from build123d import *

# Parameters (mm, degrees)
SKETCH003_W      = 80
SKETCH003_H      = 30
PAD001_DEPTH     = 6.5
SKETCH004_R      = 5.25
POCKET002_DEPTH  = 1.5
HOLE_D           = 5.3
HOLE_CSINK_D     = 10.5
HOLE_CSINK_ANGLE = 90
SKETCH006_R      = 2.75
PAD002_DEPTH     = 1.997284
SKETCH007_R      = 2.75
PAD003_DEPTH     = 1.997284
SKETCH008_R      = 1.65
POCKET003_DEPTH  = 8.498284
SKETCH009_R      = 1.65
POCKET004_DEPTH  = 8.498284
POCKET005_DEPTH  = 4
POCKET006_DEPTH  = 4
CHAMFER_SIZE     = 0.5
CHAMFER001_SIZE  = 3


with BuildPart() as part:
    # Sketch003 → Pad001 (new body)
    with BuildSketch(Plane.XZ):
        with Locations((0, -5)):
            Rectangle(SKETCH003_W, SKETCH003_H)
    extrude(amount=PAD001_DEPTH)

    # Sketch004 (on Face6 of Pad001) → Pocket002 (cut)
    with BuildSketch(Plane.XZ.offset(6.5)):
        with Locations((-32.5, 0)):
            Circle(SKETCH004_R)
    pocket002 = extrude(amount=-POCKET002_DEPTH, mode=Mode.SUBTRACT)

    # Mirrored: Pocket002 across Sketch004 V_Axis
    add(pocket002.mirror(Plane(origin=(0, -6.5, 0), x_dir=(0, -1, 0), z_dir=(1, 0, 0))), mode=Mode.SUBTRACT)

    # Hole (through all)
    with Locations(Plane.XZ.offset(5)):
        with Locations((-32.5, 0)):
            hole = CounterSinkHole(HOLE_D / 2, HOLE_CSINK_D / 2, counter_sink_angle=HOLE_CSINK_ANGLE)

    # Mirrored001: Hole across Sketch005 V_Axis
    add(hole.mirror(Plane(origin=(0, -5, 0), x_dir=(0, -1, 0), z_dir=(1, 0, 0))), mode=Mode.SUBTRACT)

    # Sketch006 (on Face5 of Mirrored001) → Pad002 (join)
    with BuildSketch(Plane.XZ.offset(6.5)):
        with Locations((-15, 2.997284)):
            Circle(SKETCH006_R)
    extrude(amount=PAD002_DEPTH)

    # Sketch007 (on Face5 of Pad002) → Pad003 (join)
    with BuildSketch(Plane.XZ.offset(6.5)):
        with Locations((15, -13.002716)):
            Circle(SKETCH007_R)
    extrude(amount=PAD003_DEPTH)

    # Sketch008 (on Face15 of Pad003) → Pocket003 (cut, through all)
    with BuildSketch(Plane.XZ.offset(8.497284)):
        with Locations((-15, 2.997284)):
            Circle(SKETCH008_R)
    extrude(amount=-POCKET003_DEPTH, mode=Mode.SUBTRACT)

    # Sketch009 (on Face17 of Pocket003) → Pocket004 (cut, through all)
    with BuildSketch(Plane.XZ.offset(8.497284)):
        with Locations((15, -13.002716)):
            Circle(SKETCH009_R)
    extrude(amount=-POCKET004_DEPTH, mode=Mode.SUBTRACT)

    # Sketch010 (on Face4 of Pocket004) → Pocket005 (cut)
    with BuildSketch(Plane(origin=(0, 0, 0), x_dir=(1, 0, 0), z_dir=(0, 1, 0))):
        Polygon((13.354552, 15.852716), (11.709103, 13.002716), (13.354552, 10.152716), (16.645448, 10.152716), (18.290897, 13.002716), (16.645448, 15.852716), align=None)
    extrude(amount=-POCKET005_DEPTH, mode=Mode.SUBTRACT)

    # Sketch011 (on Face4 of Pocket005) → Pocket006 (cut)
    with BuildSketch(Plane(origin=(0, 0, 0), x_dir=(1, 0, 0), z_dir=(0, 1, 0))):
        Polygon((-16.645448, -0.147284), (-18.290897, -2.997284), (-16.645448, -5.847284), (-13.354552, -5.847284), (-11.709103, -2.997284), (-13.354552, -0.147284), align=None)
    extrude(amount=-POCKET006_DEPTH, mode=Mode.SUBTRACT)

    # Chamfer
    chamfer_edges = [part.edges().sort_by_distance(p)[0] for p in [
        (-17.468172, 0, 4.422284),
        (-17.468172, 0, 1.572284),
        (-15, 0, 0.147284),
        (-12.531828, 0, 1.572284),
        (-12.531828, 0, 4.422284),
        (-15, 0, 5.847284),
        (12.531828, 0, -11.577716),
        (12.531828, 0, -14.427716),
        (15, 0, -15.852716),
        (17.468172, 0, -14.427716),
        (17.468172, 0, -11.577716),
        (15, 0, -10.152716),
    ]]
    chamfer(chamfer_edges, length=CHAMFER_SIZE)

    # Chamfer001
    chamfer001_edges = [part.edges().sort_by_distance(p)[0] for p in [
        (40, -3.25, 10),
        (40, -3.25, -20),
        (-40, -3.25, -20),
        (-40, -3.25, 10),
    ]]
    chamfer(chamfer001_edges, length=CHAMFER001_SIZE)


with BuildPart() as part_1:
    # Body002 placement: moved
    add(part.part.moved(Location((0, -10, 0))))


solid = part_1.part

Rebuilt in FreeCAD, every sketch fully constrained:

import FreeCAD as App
import Part
import Sketcher
Q = App.Units.Quantity


def edges_at(feature, points):
    """Names of the edges that pass closest to the given points."""
    edges = feature.Shape.Edges
    near = lambda p: min(range(len(edges)), key=lambda i: edges[i].distToShape(Part.Vertex(*p))[0])
    return sorted({f"Edge{near(p) + 1}" for p in points})


def add_polygon(sketch, points):
    """Adds a closed chain of lines whose ends are joined by coincident constraints."""
    first, n = sketch.GeometryCount, len(points)
    for a, b in zip(points, points[1:] + points[:1]):
        sketch.addGeometry(Part.LineSegment(App.Vector(*a, 0), App.Vector(*b, 0)), False)
    for i in range(n):
        sketch.addConstraint(Sketcher.Constraint("Coincident", first + i, 2, first + (i + 1) % n, 1))

doc = App.newDocument("Part")
body = doc.addObject("PartDesign::Body", "Body")

# Sketch on XZ plane
sketch1 = body.newObject("Sketcher::SketchObject", "Sketch")
sketch1.AttachmentSupport = (doc.getObject("XZ_Plane"), [""])
sketch1.MapMode = "FlatFace"
add_polygon(sketch1, [(-40, 10), (-40, -20), (40, -20), (40, 10)])  # lines 0-3
sketch1.addConstraint([
    Sketcher.Constraint("Vertical", 0),
    Sketcher.Constraint("Horizontal", 1),
    Sketcher.Constraint("Vertical", 2),
    Sketcher.Constraint("Horizontal", 3),
    Sketcher.Constraint("DistanceX", 1, 1, 1, 2, Q("80 mm")),
    Sketcher.Constraint("DistanceY", 0, 2, 0, 1, Q("30 mm")),
    Sketcher.Constraint("DistanceX", 0, 2, -1, 1, Q("40 mm")),
    Sketcher.Constraint("DistanceY", 0, 2, -1, 1, Q("20 mm")),
])
pad1 = body.newObject("PartDesign::Pad", "Pad")
pad1.Profile = sketch1
pad1.Length = 6.5

# Sketch on XZ plane
sketch2 = body.newObject("Sketcher::SketchObject", "Sketch001")
sketch2.AttachmentSupport = (doc.getObject("XZ_Plane"), [""])
sketch2.MapMode = "FlatFace"
sketch2.AttachmentOffset = App.Placement(App.Vector(0, 0, 6.5), App.Rotation())
sketch2.addGeometry(Part.Circle(App.Vector(-32, 0, 0), App.Vector(0, 0, 1), 5), False)
sketch2.addConstraint([
    Sketcher.Constraint("PointOnObject", 0, 3, -1),
    Sketcher.Constraint("Diameter", 0, Q("10.5 mm")),
    Sketcher.Constraint("DistanceX", 0, 3, -1, 1, Q("32.5 mm")),
])
pocket1 = body.newObject("PartDesign::Pocket", "Pocket")
pocket1.Profile = sketch2
pocket1.Length = 1.5
doc.recompute()

mirrored = body.newObject("PartDesign::Mirrored", "Mirrored")
mirrored.Originals = [pocket1]
mirrored.MirrorPlane = (doc.getObject("YZ_Plane"), [""])
body.Tip = mirrored

# Sketch on XZ plane
sketch3 = body.newObject("Sketcher::SketchObject", "Sketch002")
sketch3.AttachmentSupport = (doc.getObject("XZ_Plane"), [""])
sketch3.MapMode = "FlatFace"
sketch3.AttachmentOffset = App.Placement(App.Vector(0, 0, 5), App.Rotation())
sketch3.addGeometry(Part.Circle(App.Vector(-32.5, 0, 0), App.Vector(0, 0, 1), 2.6), False)
sketch3.addConstraint([
    Sketcher.Constraint("PointOnObject", 0, 3, -1),
    Sketcher.Constraint("Diameter", 0, Q("5.3 mm")),
    Sketcher.Constraint("DistanceX", 0, 3, -1, 1, Q("32.5 mm")),
])
doc.recompute()
hole = body.newObject("PartDesign::Hole", "Hole")
hole.Profile = sketch3
hole.ThreadType = "None"
hole.Diameter = 5.3
hole.DepthType = "ThroughAll"
hole.HoleCutType = "Countersink"
hole.HoleCutDiameter = 10.5
hole.HoleCutCountersinkAngle = 90
doc.recompute()

mirrored2 = body.newObject("PartDesign::Mirrored", "Mirrored001")
mirrored2.Originals = [hole]
mirrored2.MirrorPlane = (doc.getObject("YZ_Plane"), [""])
body.Tip = mirrored2

# Sketch on XZ plane
sketch4 = body.newObject("Sketcher::SketchObject", "Sketch003")
sketch4.AttachmentSupport = (doc.getObject("XZ_Plane"), [""])
sketch4.MapMode = "FlatFace"
sketch4.AttachmentOffset = App.Placement(App.Vector(0, 0, 6.5), App.Rotation())
sketch4.addGeometry(Part.Circle(App.Vector(-15, 3, 0), App.Vector(0, 0, 1), 2.8), False)
sketch4.addConstraint([
    Sketcher.Constraint("Diameter", 0, Q("5.5 mm")),
    Sketcher.Constraint("DistanceX", 0, 3, -1, 1, Q("15 mm")),
    Sketcher.Constraint("DistanceY", -1, 1, 0, 3, Q("2.997284 mm")),
])
pad2 = body.newObject("PartDesign::Pad", "Pad001")
pad2.Profile = sketch4
pad2.Length = 1.997284

# Sketch on XZ plane
sketch5 = body.newObject("Sketcher::SketchObject", "Sketch004")
sketch5.AttachmentSupport = (doc.getObject("XZ_Plane"), [""])
sketch5.MapMode = "FlatFace"
sketch5.AttachmentOffset = App.Placement(App.Vector(0, 0, 6.5), App.Rotation())
sketch5.addGeometry(Part.Circle(App.Vector(15, -13, 0), App.Vector(0, 0, 1), 2.8), False)
sketch5.addConstraint([
    Sketcher.Constraint("Diameter", 0, Q("5.5 mm")),
    Sketcher.Constraint("DistanceX", -1, 1, 0, 3, Q("15 mm")),
    Sketcher.Constraint("DistanceY", 0, 3, -1, 1, Q("13.002716 mm")),
])
pad3 = body.newObject("PartDesign::Pad", "Pad002")
pad3.Profile = sketch5
pad3.Length = 1.997284

# Sketch on XZ plane
sketch6 = body.newObject("Sketcher::SketchObject", "Sketch005")
sketch6.AttachmentSupport = (doc.getObject("XZ_Plane"), [""])
sketch6.MapMode = "FlatFace"
sketch6.AttachmentOffset = App.Placement(App.Vector(0, 0, 8.497284), App.Rotation())
sketch6.addGeometry(Part.Circle(App.Vector(-15, 3, 0), App.Vector(0, 0, 1), 1.6), False)
sketch6.addConstraint([
    Sketcher.Constraint("Diameter", 0, Q("3.3 mm")),
    Sketcher.Constraint("DistanceX", 0, 3, -1, 1, Q("15 mm")),
    Sketcher.Constraint("DistanceY", -1, 1, 0, 3, Q("2.997284 mm")),
])
pocket2 = body.newObject("PartDesign::Pocket", "Pocket001")
pocket2.Profile = sketch6
pocket2.Type = "ThroughAll"

# Sketch on XZ plane
sketch7 = body.newObject("Sketcher::SketchObject", "Sketch006")
sketch7.AttachmentSupport = (doc.getObject("XZ_Plane"), [""])
sketch7.MapMode = "FlatFace"
sketch7.AttachmentOffset = App.Placement(App.Vector(0, 0, 8.497284), App.Rotation())
sketch7.addGeometry(Part.Circle(App.Vector(15, -13, 0), App.Vector(0, 0, 1), 1.6), False)
sketch7.addConstraint([
    Sketcher.Constraint("Diameter", 0, Q("3.3 mm")),
    Sketcher.Constraint("DistanceX", -1, 1, 0, 3, Q("15 mm")),
    Sketcher.Constraint("DistanceY", 0, 3, -1, 1, Q("13.002716 mm")),
])
pocket3 = body.newObject("PartDesign::Pocket", "Pocket002")
pocket3.Profile = sketch7
pocket3.Type = "ThroughAll"

# Sketch on XZ plane
sketch8 = body.newObject("Sketcher::SketchObject", "Sketch007")
sketch8.AttachmentSupport = (doc.getObject("XZ_Plane"), [""])
sketch8.MapMode = "FlatFace"
add_polygon(sketch8, [(13.4, -15.9), (11.7, -13), (13.4, -10.2), (16.6, -10.2), (18.3, -13), (16.6, -15.9)])  # lines 0-5
sketch8.addConstraint([
    Sketcher.Constraint("Horizontal", 2),
    Sketcher.Constraint("Horizontal", 5),
    Sketcher.Constraint("Parallel", 0, 3),
    Sketcher.Constraint("Parallel", 1, 4),
    Sketcher.Constraint("Horizontal", 0, 2, 3, 2),
    Sketcher.Constraint("Vertical", 2, 2, 4, 2),
    Sketcher.Constraint("Vertical", 1, 2, 5, 2),
    Sketcher.Constraint("Angle", 0, Q("120.000011 deg")),
    Sketcher.Constraint("DistanceY", 4, 2, 2, 2, Q("5.7 mm")),
    Sketcher.Constraint("DistanceX", 2, 1, 2, 2, Q("3.290896 mm")),
    Sketcher.Constraint("DistanceX", -1, 1, 0, 2, Q("11.709103 mm")),
    Sketcher.Constraint("DistanceY", 0, 2, -1, 1, Q("13.002716 mm")),
])
pocket4 = body.newObject("PartDesign::Pocket", "Pocket003")
pocket4.Profile = sketch8
pocket4.Length = 4
pocket4.Reversed = True

# Sketch on XZ plane
sketch9 = body.newObject("Sketcher::SketchObject", "Sketch008")
sketch9.AttachmentSupport = (doc.getObject("XZ_Plane"), [""])
sketch9.MapMode = "FlatFace"
add_polygon(sketch9, [(-16.6, 0.1), (-18.3, 3), (-16.6, 5.8), (-13.4, 5.8), (-11.7, 3), (-13.4, 0.1)])  # lines 0-5
sketch9.addConstraint([
    Sketcher.Constraint("Horizontal", 2),
    Sketcher.Constraint("Horizontal", 5),
    Sketcher.Constraint("Parallel", 0, 3),
    Sketcher.Constraint("Parallel", 1, 4),
    Sketcher.Constraint("Horizontal", 0, 2, 3, 2),
    Sketcher.Constraint("Vertical", 2, 2, 4, 2),
    Sketcher.Constraint("Vertical", 1, 2, 5, 2),
    Sketcher.Constraint("Angle", 0, Q("120.000011 deg")),
    Sketcher.Constraint("DistanceY", 4, 2, 2, 2, Q("5.7 mm")),
    Sketcher.Constraint("DistanceX", 2, 1, 2, 2, Q("3.290896 mm")),
    Sketcher.Constraint("DistanceX", 0, 2, -1, 1, Q("18.290897 mm")),
    Sketcher.Constraint("DistanceY", -1, 1, 0, 2, Q("2.997284 mm")),
])
pocket5 = body.newObject("PartDesign::Pocket", "Pocket004")
pocket5.Profile = sketch9
pocket5.Length = 4
pocket5.Reversed = True
doc.recompute()

chamfer = body.newObject("PartDesign::Chamfer", "Chamfer")
chamfer.Base = (pocket5, edges_at(pocket5, [
    (-17.468, 0, 4.422),
    (-17.468, 0, 1.572),
    (-15, 0, 0.147),
    (-12.532, 0, 1.572),
    (-12.532, 0, 4.422),
    (-15, 0, 5.847),
    (12.532, 0, -11.578),
    (12.532, 0, -14.428),
    (15, 0, -15.853),
    (17.468, 0, -14.428),
    (17.468, 0, -11.578),
    (15, 0, -10.153),
]))
chamfer.Size = 0.5
doc.recompute()

chamfer2 = body.newObject("PartDesign::Chamfer", "Chamfer001")
chamfer2.Base = (chamfer, edges_at(chamfer, [
    (40, -3.25, 10),
    (40, -3.25, -20),
    (-40, -3.25, -20),
    (-40, -3.25, 10),
]))
chamfer2.Size = 3
body2 = doc.addObject("PartDesign::Body", "Body001")
doc.recompute()

body.Placement = App.Placement(App.Vector(0, -10, 0), App.Rotation(App.Vector(0, 0, 1), 0))
boolean = body2.newObject("PartDesign::Boolean", "Boolean")
boolean.Type = "Fuse"
boolean.addObjects([body])

doc.recompute()
